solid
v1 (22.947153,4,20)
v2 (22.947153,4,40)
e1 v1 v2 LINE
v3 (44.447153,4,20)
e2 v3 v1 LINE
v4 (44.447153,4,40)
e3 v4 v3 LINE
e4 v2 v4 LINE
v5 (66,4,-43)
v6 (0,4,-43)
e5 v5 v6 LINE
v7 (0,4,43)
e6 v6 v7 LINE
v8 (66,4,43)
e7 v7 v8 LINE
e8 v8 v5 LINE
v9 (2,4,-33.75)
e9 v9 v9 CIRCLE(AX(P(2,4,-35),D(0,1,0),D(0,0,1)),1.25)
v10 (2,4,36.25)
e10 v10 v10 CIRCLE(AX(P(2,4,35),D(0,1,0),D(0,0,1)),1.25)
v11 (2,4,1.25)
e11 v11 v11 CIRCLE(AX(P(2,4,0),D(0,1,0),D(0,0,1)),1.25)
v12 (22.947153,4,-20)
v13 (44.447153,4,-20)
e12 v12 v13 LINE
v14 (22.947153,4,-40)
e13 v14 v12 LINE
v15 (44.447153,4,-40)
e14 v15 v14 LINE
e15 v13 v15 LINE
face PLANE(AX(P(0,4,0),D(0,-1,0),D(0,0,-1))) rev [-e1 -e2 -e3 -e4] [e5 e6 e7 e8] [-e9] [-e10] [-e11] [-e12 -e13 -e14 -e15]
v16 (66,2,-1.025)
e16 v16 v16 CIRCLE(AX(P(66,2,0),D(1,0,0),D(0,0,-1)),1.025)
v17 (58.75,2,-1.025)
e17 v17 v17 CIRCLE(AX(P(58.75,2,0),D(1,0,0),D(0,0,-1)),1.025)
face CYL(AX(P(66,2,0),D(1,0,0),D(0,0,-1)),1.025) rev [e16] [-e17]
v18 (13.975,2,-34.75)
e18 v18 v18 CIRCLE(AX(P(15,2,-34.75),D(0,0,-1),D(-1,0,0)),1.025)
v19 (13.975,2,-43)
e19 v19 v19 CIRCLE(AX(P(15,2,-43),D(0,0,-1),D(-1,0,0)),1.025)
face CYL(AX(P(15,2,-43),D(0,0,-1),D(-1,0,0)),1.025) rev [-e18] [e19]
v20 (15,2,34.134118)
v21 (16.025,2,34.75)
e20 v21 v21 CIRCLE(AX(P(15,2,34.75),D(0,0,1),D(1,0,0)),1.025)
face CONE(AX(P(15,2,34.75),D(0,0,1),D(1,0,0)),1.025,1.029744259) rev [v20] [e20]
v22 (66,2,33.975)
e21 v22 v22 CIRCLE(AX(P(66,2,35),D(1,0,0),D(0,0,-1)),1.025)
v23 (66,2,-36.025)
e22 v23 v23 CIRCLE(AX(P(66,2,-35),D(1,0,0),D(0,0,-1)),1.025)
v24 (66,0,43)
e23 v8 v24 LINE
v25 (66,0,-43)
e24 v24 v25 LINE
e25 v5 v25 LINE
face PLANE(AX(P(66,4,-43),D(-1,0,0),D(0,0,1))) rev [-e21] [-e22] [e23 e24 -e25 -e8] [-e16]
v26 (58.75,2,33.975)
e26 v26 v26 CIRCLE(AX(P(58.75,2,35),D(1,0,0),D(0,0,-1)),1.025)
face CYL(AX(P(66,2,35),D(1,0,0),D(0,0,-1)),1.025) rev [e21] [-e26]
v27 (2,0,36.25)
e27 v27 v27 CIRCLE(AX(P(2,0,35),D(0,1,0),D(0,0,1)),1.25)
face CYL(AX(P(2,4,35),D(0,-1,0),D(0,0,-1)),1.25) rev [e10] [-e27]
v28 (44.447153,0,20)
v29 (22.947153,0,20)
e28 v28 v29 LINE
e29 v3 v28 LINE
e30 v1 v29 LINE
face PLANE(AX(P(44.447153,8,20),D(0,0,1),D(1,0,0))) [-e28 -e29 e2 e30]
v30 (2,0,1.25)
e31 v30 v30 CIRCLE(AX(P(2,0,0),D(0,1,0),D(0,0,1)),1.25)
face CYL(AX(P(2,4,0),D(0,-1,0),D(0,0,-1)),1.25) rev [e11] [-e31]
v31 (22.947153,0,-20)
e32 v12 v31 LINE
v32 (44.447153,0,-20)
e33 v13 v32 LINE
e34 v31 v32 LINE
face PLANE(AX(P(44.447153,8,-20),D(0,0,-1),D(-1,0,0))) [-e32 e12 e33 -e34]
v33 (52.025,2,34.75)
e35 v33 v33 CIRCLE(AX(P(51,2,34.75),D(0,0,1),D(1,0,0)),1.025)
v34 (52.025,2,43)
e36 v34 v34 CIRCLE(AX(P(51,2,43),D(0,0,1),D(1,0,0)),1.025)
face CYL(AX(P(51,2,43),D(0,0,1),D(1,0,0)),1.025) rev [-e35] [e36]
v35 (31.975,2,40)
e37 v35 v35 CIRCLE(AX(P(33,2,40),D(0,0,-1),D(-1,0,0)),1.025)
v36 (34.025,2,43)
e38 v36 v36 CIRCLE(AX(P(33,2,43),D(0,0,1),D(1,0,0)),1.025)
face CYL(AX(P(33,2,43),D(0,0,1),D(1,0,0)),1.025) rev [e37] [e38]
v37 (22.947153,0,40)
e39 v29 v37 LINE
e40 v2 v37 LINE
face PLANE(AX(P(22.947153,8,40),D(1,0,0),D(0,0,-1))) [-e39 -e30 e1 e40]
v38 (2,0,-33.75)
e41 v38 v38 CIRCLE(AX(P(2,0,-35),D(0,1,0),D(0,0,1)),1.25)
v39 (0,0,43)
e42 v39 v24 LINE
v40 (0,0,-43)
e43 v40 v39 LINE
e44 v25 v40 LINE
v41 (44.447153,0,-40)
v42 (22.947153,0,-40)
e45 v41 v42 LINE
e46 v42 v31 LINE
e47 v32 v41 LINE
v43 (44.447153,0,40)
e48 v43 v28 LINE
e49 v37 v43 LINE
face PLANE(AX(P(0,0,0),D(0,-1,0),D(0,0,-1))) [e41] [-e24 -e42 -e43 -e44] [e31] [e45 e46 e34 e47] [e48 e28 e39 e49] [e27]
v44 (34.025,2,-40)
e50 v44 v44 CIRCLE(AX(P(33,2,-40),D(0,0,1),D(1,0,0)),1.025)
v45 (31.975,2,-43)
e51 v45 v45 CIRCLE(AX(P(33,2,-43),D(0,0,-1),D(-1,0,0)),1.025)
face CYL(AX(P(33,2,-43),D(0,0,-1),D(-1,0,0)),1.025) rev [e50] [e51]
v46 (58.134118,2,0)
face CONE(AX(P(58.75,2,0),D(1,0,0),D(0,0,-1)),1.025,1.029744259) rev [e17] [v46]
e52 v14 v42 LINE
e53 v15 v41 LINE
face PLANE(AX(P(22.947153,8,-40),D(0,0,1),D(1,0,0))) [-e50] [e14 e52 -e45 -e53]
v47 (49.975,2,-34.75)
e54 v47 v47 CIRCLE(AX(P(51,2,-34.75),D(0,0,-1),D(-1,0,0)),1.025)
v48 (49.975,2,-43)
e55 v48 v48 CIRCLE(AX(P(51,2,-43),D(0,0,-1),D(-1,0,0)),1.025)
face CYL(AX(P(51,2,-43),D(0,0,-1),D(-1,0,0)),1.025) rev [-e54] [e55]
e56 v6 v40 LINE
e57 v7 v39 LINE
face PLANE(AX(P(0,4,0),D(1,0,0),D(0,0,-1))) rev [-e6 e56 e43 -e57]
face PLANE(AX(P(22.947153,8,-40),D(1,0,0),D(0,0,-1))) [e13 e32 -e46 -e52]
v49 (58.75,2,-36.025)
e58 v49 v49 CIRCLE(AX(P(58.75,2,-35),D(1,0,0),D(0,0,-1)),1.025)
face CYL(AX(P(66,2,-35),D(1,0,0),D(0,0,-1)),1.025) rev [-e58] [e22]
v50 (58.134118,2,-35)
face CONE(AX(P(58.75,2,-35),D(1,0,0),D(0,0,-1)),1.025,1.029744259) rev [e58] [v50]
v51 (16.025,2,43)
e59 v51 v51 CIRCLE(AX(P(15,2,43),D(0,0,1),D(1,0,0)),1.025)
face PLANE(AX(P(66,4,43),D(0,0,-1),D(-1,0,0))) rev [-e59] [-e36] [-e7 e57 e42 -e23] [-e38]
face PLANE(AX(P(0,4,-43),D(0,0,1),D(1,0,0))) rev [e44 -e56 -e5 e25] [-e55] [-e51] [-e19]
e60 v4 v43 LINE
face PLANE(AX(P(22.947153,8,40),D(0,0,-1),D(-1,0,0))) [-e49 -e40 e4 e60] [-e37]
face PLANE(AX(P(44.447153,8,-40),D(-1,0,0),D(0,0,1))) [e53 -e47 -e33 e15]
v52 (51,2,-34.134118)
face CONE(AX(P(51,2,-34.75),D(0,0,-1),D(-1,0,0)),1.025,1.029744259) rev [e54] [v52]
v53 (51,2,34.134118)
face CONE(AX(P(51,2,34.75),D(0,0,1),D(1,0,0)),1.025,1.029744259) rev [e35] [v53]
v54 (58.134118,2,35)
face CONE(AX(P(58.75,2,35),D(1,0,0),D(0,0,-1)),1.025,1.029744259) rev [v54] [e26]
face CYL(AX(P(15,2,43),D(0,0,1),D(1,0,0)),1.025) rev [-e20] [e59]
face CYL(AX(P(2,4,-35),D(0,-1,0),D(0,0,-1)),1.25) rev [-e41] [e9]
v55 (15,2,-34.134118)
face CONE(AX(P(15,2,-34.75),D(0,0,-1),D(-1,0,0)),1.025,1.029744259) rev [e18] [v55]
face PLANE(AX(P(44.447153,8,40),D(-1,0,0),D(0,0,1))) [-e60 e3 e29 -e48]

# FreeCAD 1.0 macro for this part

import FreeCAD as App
import Part
import Sketcher
Q = App.Units.Quantity


def add_polygon(sketch, points):
    """Adds a closed chain of lines whose ends are joined by coincident constraints."""
    first, n = sketch.GeometryCount, len(points)
    for a, b in zip(points, points[1:] + points[:1]):
        sketch.addGeometry(Part.LineSegment(App.Vector(*a, 0), App.Vector(*b, 0)), False)
    for i in range(n):
        sketch.addConstraint(Sketcher.Constraint("Coincident", first + i, 2, first + (i + 1) % n, 1))

doc = App.newDocument("Part")
params = doc.addObject("Spreadsheet::Sheet", "Params")
for row, (alias, value) in enumerate([
    ("sketch1_diameter", "2.5 mm"),
    ("sketch1_width", "66 mm"),
    ("sketch1_height", "86 mm"),
    ("pad1_length", "4 mm"),
    ("sketch2_height", "20 mm"),
    ("sketch2_width", "21.5 mm"),
    ("pocket1_length", "8 mm"),
    ("sketch3_height", "8.25 mm"),
    ("groove_angle", "360 deg"),
    ("linearpattern_pitch", "18 mm"),
    ("linearpattern2_pitch", "36 mm"),
    ("sketch4_height", "8.25 mm"),
    ("groove2_angle", "360 deg"),
    ("sketch5_height", "8.25 mm"),
    ("groove3_angle", "360 deg"),
    ("sketch6_diameter", "2.05 mm"),
    ("hole_diameter", "2.05 mm"),
    ("hole_depth", "7.25 mm"),
], start=1):
    params.set(f"A{row}", alias)
    params.set(f"B{row}", "=" + value)
    params.setAlias(f"B{row}", alias)

body = doc.addObject("PartDesign::Body", "Body")

# Sketch on XZ plane
sketch1 = body.newObject("Sketcher::SketchObject", "Sketch")
sketch1.AttachmentSupport = (doc.getObject("XZ_Plane"), [""])
sketch1.MapMode = "FlatFace"
add_polygon(sketch1, [(0, -43), (0, 43), (66, 43), (66, -43)])  # lines 0-3
sketch1.addGeometry(Part.Circle(App.Vector(2, 35, 0), App.Vector(0, 0, 1), 1.25), False)  # 4
sketch1.addGeometry(Part.Circle(App.Vector(2, 0, 0), App.Vector(0, 0, 1), 1.25), False)  # 5
sketch1.addGeometry(Part.Circle(App.Vector(2, -35, 0), App.Vector(0, 0, 1), 1.25), False)  # 6
sketch1.addConstraint([
    Sketcher.Constraint("Vertical", 0),
    Sketcher.Constraint("Horizontal", 1),
    Sketcher.Constraint("Vertical", 2),
    Sketcher.Constraint("Horizontal", 3),
    Sketcher.Constraint("Equal", 4, 5),
    Sketcher.Constraint("Equal", 5, 6),
    Sketcher.Constraint("Symmetric", 0, 2, 3, 2, -1, 1),
    Sketcher.Constraint("Symmetric", 4, 3, 6, 3, -1),
    Sketcher.Constraint("PointOnObject", 5, 3, -1),
    Sketcher.Constraint("Vertical", 4, 3, 5, 3),
    Sketcher.Constraint("Diameter", 4, 2.5),
    Sketcher.Constraint("DistanceX", 1, 1, 1, 2, 66.0),
    Sketcher.Constraint("DistanceY", 0, 1, 0, 2, 86.0),
    Sketcher.Constraint("DistanceX", -1, 1, 4, 3, 2.0),
    Sketcher.Constraint("DistanceY", -1, 1, 4, 3, 35.0),
])
sketch1.setExpression("Constraints[14]", "Params.sketch1_diameter")
sketch1.setExpression("Constraints[15]", "Params.sketch1_width")
sketch1.setExpression("Constraints[16]", "Params.sketch1_height")
pad1 = body.newObject("PartDesign::Pad", "Pad")
pad1.Profile = sketch1
pad1.setExpression("Length", "Params.pad1_length")
pad1.Reversed = True

# Sketch on XZ plane
sketch2 = body.newObject("Sketcher::SketchObject", "Sketch001")
sketch2.AttachmentSupport = (doc.getObject("XZ_Plane"), [""])
sketch2.MapMode = "FlatFace"
add_polygon(sketch2, [(22.947153, 20), (22.947153, 40), (44.447153, 40), (44.447153, 20)])  # lines 0-3
add_polygon(sketch2, [(22.947153, -40), (22.947153, -20), (44.447153, -20), (44.447153, -40)])  # lines 4-7
sketch2.addConstraint([
    Sketcher.Constraint("Vertical", 0),
    Sketcher.Constraint("Horizontal", 1),
    Sketcher.Constraint("Vertical", 2),
    Sketcher.Constraint("Horizontal", 3),
    Sketcher.Constraint("Vertical", 4),
    Sketcher.Constraint("Horizontal", 5),
    Sketcher.Constraint("Vertical", 6),
    Sketcher.Constraint("Horizontal", 7),
    Sketcher.Constraint("Symmetric", 3, 2, 4, 2, -1),
    Sketcher.Constraint("Symmetric", 1, 2, 6, 2, -1),
    Sketcher.Constraint("DistanceY", 0, 1, 0, 2, 20.0),
    Sketcher.Constraint("DistanceX", 1, 1, 1, 2, 21.5),
    Sketcher.Constraint("DistanceY", -1, 1, 0, 2, 40.0),
    Sketcher.Constraint("DistanceX", -1, 1, 0, 2, 22.947153),
])
sketch2.setExpression("Constraints[18]", "Params.sketch2_height")
sketch2.setExpression("Constraints[19]", "Params.sketch2_width")
pocket1 = body.newObject("PartDesign::Pocket", "Pocket")
pocket1.Profile = sketch2
pocket1.setExpression("Length", "Params.pocket1_length")

# Sketch on YZ plane
sketch3 = body.newObject("Sketcher::SketchObject", "Sketch002")
sketch3.AttachmentSupport = (doc.getObject("YZ_Plane"), [""])
sketch3.MapMode = "FlatFace"
sketch3.AttachmentOffset = App.Placement(App.Vector(0, 0, 15), App.Rotation())
add_polygon(sketch3, [(2, 34.134118), (2, 43), (0.975, 43), (0.975, 34.75)])  # lines 0-3
sketch3.addGeometry(Part.LineSegment(App.Vector(2, 43, 0), App.Vector(2, 34.134118, 0)), True)  # axis
sketch3.addConstraint([
    Sketcher.Constraint("Vertical", 0),
    Sketcher.Constraint("Horizontal", 1),
    Sketcher.Constraint("Vertical", 2),
    Sketcher.Constraint("Vertical", 4),
    Sketcher.Constraint("Coincident", 4, 1, 0, 2),
    Sketcher.Constraint("Equal", 0, 4),
    Sketcher.Constraint("Angle", 3, Q("-31 deg")),
    Sketcher.Constraint("DistanceX", -1, 1, 0, 2, 2.0),
    Sketcher.Constraint("DistanceY", -1, 1, 0, 2, 43.0),
    Sketcher.Constraint("DistanceY", 2, 2, 2, 1, 8.25),
    Sketcher.Constraint("DistanceX", 1, 2, 1, 1, 1.025),
])
sketch3.setExpression("Constraints[13]", "Params.sketch3_height")
groove = body.newObject("PartDesign::Groove", "Groove")
groove.Profile = sketch3
groove.ReferenceAxis = (sketch3, ["Axis0"])
groove.setExpression("Angle", "Params.groove_angle")
doc.recompute()

linearpattern = body.newObject("PartDesign::LinearPattern", "LinearPattern")
linearpattern.Originals = [groove]
linearpattern.Direction = (doc.getObject("X_Axis"), [""])
linearpattern.Mode = "offset"
linearpattern.setExpression("Offset", "Params.linearpattern_pitch")
linearpattern.Occurrences = 2
body.Tip = linearpattern
doc.recompute()

linearpattern2 = body.newObject("PartDesign::LinearPattern", "LinearPattern001")
linearpattern2.Originals = [groove]
linearpattern2.Direction = (doc.getObject("X_Axis"), [""])
linearpattern2.Mode = "offset"
linearpattern2.setExpression("Offset", "Params.linearpattern2_pitch")
linearpattern2.Occurrences = 2
body.Tip = linearpattern2
doc.recompute()

mirrored = body.newObject("PartDesign::Mirrored", "Mirrored")
mirrored.Originals = [groove]
mirrored.MirrorPlane = (doc.getObject("XY_Plane"), [""])
body.Tip = mirrored

# Sketch on YZ plane
sketch4 = body.newObject("Sketcher::SketchObject", "Sketch003")
sketch4.AttachmentSupport = (doc.getObject("YZ_Plane"), [""])
sketch4.MapMode = "FlatFace"
sketch4.AttachmentOffset = App.Placement(App.Vector(0, 0, 33), App.Rotation())
add_polygon(sketch4, [(2, -43), (2, -34.134118), (0.975, -34.75), (0.975, -43)])  # lines 0-3
sketch4.addGeometry(Part.LineSegment(App.Vector(2, -34.134118, 0), App.Vector(2, -43, 0)), True)  # axis
sketch4.addConstraint([
    Sketcher.Constraint("Vertical", 0),
    Sketcher.Constraint("Vertical", 2),
    Sketcher.Constraint("Horizontal", 3),
    Sketcher.Constraint("Vertical", 4),
    Sketcher.Constraint("Coincident", 4, 1, 0, 2),
    Sketcher.Constraint("Horizontal", 2, 2, 4, 2),
    Sketcher.Constraint("Angle", 1, Q("-149 deg")),
    Sketcher.Constraint("DistanceX", -1, 1, 0, 2, 2.0),
    Sketcher.Constraint("DistanceY", 2, 2, -1, 1, 43.0),
    Sketcher.Constraint("DistanceY", 2, 2, 2, 1, 8.25),
    Sketcher.Constraint("DistanceX", 3, 1, 3, 2, 1.025),
])
sketch4.setExpression("Constraints[13]", "Params.sketch4_height")
groove2 = body.newObject("PartDesign::Groove", "Groove001")
groove2.Profile = sketch4
groove2.ReferenceAxis = (sketch4, ["Axis0"])
groove2.setExpression("Angle", "Params.groove2_angle")

# Sketch on YZ plane
sketch5 = body.newObject("Sketcher::SketchObject", "Sketch004")
sketch5.AttachmentSupport = (doc.getObject("YZ_Plane"), [""])
sketch5.MapMode = "FlatFace"
sketch5.AttachmentOffset = App.Placement(App.Vector(0, 0, 51), App.Rotation())
add_polygon(sketch5, [(2, -43), (2, -34.134118), (0.975, -34.75), (0.975, -43)])  # lines 0-3
sketch5.addGeometry(Part.LineSegment(App.Vector(2, -34.134118, 0), App.Vector(2, -43, 0)), True)  # axis
sketch5.addConstraint([
    Sketcher.Constraint("Vertical", 0),
    Sketcher.Constraint("Vertical", 2),
    Sketcher.Constraint("Horizontal", 3),
    Sketcher.Constraint("Vertical", 4),
    Sketcher.Constraint("Coincident", 4, 1, 0, 2),
    Sketcher.Constraint("Horizontal", 2, 2, 4, 2),
    Sketcher.Constraint("Angle", 1, Q("-149 deg")),
    Sketcher.Constraint("DistanceX", -1, 1, 0, 2, 2.0),
    Sketcher.Constraint("DistanceY", 2, 2, -1, 1, 43.0),
    Sketcher.Constraint("DistanceY", 2, 2, 2, 1, 8.25),
    Sketcher.Constraint("DistanceX", 3, 1, 3, 2, 1.025),
])
sketch5.setExpression("Constraints[13]", "Params.sketch5_height")
groove3 = body.newObject("PartDesign::Groove", "Groove002")
groove3.Profile = sketch5
groove3.ReferenceAxis = (sketch5, ["Axis0"])
groove3.setExpression("Angle", "Params.groove3_angle")

# Sketch on YZ plane
sketch6 = body.newObject("Sketcher::SketchObject", "Sketch005")
sketch6.AttachmentSupport = (doc.getObject("YZ_Plane"), [""])
sketch6.MapMode = "FlatFace"
sketch6.AttachmentOffset = App.Placement(App.Vector(0, 0, 66), App.Rotation())
sketch6.addGeometry([
    Part.Circle(App.Vector(2, 0, 0), App.Vector(0, 0, 1), 1.025),
    Part.Circle(App.Vector(2, 35, 0), App.Vector(0, 0, 1), 1.025),
    Part.Circle(App.Vector(2, -35, 0), App.Vector(0, 0, 1), 1.025),
], False)
sketch6.addConstraint([
    Sketcher.Constraint("Equal", 0, 1),
    Sketcher.Constraint("Equal", 1, 2),
    Sketcher.Constraint("Symmetric", 1, 3, 2, 3, -1),
    Sketcher.Constraint("PointOnObject", 0, 3, -1),
    Sketcher.Constraint("Vertical", 0, 3, 1, 3),
    Sketcher.Constraint("Diameter", 0, 2.05),
    Sketcher.Constraint("DistanceX", -1, 1, 0, 3, 2.0),
    Sketcher.Constraint("DistanceY", -1, 1, 1, 3, 35.0),
])
sketch6.setExpression("Constraints[5]", "Params.sketch6_diameter")
doc.recompute()
hole = body.newObject("PartDesign::Hole", "Hole")
hole.Profile = sketch6
hole.ThreadType = "None"
hole.setExpression("Diameter", "Params.hole_diameter")
hole.DepthType = "Dimension"
hole.setExpression("Depth", "Params.hole_depth")
hole.DrillPoint = "Angled"
hole.DrillPointAngle = 118

doc.recompute()
